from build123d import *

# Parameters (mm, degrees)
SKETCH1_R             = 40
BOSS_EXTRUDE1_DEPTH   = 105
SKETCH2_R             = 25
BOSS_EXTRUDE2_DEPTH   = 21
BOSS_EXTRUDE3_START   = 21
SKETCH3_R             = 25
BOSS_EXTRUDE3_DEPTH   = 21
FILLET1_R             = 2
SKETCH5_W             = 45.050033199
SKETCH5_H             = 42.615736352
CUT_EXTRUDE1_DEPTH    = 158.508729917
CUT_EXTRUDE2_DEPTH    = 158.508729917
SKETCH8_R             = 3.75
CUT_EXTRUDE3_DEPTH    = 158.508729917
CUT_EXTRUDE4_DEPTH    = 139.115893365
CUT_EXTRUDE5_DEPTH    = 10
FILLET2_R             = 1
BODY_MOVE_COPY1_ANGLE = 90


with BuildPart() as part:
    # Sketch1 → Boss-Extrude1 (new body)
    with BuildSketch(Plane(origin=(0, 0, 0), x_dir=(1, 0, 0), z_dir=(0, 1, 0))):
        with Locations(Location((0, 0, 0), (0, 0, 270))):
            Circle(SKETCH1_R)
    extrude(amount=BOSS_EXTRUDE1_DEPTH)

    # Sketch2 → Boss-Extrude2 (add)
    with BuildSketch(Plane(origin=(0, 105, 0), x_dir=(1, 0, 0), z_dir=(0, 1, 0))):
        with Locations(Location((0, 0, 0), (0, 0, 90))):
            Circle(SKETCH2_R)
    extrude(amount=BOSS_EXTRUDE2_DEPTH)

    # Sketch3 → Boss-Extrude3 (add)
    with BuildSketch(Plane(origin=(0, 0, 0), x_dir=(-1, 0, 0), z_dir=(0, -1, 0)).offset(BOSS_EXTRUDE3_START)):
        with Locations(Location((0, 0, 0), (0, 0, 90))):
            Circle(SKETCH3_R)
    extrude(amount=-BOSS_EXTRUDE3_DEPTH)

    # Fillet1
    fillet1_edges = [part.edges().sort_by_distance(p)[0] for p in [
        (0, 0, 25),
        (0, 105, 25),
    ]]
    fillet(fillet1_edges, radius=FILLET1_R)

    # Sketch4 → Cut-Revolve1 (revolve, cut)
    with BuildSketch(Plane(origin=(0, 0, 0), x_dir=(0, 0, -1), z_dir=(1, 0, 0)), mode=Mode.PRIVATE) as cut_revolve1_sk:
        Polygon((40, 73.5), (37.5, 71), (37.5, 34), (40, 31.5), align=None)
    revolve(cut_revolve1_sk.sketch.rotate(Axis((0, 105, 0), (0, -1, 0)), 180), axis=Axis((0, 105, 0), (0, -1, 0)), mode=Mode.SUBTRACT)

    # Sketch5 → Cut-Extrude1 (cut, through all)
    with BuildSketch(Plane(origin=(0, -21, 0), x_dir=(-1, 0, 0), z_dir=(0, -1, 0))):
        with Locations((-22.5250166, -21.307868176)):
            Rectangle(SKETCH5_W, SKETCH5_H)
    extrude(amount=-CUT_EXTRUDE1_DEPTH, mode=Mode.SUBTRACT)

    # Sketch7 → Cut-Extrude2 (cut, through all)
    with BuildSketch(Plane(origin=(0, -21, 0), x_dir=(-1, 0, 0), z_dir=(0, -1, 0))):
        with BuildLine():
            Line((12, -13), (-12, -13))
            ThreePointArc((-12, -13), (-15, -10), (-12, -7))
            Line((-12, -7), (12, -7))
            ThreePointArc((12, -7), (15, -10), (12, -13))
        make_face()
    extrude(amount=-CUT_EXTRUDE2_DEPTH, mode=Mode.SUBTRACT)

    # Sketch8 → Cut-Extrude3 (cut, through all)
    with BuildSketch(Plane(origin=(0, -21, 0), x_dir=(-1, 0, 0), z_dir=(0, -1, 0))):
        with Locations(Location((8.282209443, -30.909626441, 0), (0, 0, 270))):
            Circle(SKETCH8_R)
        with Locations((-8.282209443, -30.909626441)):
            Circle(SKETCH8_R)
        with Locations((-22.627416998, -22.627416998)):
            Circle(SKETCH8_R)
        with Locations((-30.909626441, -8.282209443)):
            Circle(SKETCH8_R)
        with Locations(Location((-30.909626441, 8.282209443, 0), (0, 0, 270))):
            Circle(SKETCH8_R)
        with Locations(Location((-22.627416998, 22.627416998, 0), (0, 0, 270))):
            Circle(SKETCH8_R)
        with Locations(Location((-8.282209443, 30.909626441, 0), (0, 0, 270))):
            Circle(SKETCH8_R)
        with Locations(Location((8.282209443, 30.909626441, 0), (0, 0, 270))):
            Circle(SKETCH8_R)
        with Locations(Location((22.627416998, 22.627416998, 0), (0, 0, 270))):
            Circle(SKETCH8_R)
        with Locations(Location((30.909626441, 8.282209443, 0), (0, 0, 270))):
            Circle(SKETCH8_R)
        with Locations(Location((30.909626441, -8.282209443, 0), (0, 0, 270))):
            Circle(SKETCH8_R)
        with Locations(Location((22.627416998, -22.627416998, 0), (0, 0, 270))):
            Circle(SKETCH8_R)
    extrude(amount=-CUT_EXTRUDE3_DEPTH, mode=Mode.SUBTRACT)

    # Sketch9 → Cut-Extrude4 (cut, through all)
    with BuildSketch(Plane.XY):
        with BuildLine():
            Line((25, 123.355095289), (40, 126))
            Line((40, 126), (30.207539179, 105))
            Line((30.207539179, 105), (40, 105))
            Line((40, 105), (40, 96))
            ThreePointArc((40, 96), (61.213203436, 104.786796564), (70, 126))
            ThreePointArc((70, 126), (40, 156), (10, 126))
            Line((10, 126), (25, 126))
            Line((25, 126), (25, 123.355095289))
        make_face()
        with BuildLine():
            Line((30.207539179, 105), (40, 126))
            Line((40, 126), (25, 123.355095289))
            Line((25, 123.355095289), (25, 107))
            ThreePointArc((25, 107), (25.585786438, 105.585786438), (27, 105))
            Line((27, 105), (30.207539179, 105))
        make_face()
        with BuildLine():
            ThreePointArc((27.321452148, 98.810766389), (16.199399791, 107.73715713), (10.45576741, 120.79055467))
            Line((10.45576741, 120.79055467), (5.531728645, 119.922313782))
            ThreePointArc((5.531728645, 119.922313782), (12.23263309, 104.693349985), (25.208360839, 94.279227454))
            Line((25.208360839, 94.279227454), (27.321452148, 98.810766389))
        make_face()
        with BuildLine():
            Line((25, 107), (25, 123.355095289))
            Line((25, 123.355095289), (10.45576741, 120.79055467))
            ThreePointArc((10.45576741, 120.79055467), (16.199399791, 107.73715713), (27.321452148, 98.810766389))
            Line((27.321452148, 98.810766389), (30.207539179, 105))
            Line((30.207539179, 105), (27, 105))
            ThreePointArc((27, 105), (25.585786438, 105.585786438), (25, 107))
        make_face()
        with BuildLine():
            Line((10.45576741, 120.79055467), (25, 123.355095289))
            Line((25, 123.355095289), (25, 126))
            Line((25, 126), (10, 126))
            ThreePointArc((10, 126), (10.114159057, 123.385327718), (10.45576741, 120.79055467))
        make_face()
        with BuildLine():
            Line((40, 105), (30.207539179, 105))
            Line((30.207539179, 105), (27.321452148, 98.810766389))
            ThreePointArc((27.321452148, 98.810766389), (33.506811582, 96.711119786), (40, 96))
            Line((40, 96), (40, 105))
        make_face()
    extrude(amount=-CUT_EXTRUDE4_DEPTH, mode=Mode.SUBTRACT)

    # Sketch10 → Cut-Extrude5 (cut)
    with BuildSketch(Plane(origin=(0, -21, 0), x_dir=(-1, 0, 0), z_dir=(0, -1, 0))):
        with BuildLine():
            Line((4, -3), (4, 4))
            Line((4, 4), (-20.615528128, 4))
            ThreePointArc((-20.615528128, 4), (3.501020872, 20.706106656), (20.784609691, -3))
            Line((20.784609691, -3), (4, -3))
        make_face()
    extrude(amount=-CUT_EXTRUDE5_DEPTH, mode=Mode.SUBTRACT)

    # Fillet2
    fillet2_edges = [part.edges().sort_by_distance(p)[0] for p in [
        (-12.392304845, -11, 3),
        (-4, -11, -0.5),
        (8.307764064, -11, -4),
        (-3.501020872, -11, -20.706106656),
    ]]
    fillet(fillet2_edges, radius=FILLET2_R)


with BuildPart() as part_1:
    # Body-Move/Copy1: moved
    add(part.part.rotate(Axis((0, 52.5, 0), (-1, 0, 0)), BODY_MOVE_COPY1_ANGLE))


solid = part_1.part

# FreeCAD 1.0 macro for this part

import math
import FreeCAD as App
import Part
import Sketcher

V = App.Vector
Q = App.Units.Quantity


def edges_at(feature, points):
    """Names of the edges that pass closest to the given points."""
    edges = feature.Shape.Edges
    near = lambda p: min(range(len(edges)), key=lambda i: edges[i].distToShape(Part.Vertex(*p))[0])
    return sorted({f"Edge{near(p) + 1}" for p in points})

doc = App.newDocument("Part")
body = doc.addObject("PartDesign::Body", "Body")

sketch1 = doc.addObject("Sketcher::SketchObject", "Sketch")
body.addObject(sketch1)
sketch1.AttachmentSupport = (doc.XZ_Plane, [""])
sketch1.MapMode = "FlatFace"
sketch1.addGeometry(Part.Circle(V(0, 0, 0), V(0, 0, 1), 40), False)
sketch1.addConstraint([
    Sketcher.Constraint("Coincident", 0, 3, -1, 1),
    Sketcher.Constraint("Diameter", 0, 80.0),
])
pad1 = doc.addObject("PartDesign::Pad", "Pad")
body.addObject(pad1)
pad1.Profile = sketch1
pad1.Length = 105
pad1.Reversed = True

sketch2 = doc.addObject("Sketcher::SketchObject", "Sketch001")
body.addObject(sketch2)
sketch2.AttachmentSupport = (doc.XZ_Plane, [""])
sketch2.MapMode = "FlatFace"
sketch2.AttachmentOffset = App.Placement(V(0, 0, -105), App.Rotation())
sketch2.addGeometry(Part.Circle(V(0, 0, 0), V(0, 0, 1), 25), False)
sketch2.addConstraint([
    Sketcher.Constraint("Coincident", 0, 3, -1, 1),
    Sketcher.Constraint("Diameter", 0, 50.0),
])
pad2 = doc.addObject("PartDesign::Pad", "Pad001")
body.addObject(pad2)
pad2.Profile = sketch2
pad2.Length = 21
pad2.Reversed = True

sketch3 = doc.addObject("Sketcher::SketchObject", "Sketch002")
body.addObject(sketch3)
sketch3.AttachmentSupport = (doc.XZ_Plane, [""])
sketch3.MapMode = "FlatFace"
sketch3.AttachmentOffset = App.Placement(V(0, 0, 21), App.Rotation())
sketch3.addGeometry(Part.Circle(V(0, 0, 0), V(0, 0, 1), 25), False)
sketch3.addConstraint([
    Sketcher.Constraint("Coincident", 0, 3, -1, 1),
    Sketcher.Constraint("Diameter", 0, 50.0),
])
pad3 = doc.addObject("PartDesign::Pad", "Pad002")
body.addObject(pad3)
pad3.Profile = sketch3
pad3.Length = 21
pad3.Reversed = True
doc.recompute()

fillet = doc.addObject("PartDesign::Fillet", "Fillet")
body.addObject(fillet)
fillet.Base = (pad3, edges_at(pad3, [(0, 0, 25), (0, 105, 25)]))
fillet.Radius = 2

sketch4 = doc.addObject("Sketcher::SketchObject", "Sketch003")
body.addObject(sketch4)
sketch4.AttachmentSupport = (doc.YZ_Plane, [""])
sketch4.MapMode = "FlatFace"
sketch4.addGeometry([
    Part.LineSegment(V(73.5, -40, 0), V(71, -37.5, 0)),
    Part.LineSegment(V(71, -37.5, 0), V(34, -37.5, 0)),
    Part.LineSegment(V(34, -37.5, 0), V(31.5, -40, 0)),
    Part.LineSegment(V(31.5, -40, 0), V(73.5, -40, 0)),
], False)
sketch4.addConstraint([
    Sketcher.Constraint("Coincident", 0, 2, 1, 1),
    Sketcher.Constraint("Coincident", 1, 2, 2, 1),
    Sketcher.Constraint("Coincident", 2, 2, 3, 1),
    Sketcher.Constraint("Coincident", 3, 2, 0, 1),
    Sketcher.Constraint("Horizontal", 1),
    Sketcher.Constraint("Horizontal", 3),
    Sketcher.Constraint("Perpendicular", 0, 2),
    Sketcher.Constraint("Equal", 0, 2),
    Sketcher.Constraint("DistanceX", 1, 2, 1, 1, 37.0),
    Sketcher.Constraint("DistanceX", 3, 1, 3, 2, 42.0),
    Sketcher.Constraint("DistanceX", -1, 1, 0, 2, 71.0),
    Sketcher.Constraint("DistanceY", 2, 2, -1, 1, 40.0),
])
groove = doc.addObject("PartDesign::Groove", "Groove")
body.addObject(groove)
groove.Profile = sketch4
groove.ReferenceAxis = (sketch4, ["H_Axis"])
groove.Angle = 360

sketch5 = doc.addObject("Sketcher::SketchObject", "Sketch004")
body.addObject(sketch5)
sketch5.AttachmentSupport = (doc.XZ_Plane, [""])
sketch5.MapMode = "FlatFace"
sketch5.AttachmentOffset = App.Placement(V(0, 0, 21), App.Rotation())
sketch5.addGeometry([
    Part.LineSegment(V(45, 0, 0), V(45, 43, 0)),
    Part.LineSegment(V(45, 43, 0), V(0, 43, 0)),
    Part.LineSegment(V(0, 43, 0), V(0, 0, 0)),
    Part.LineSegment(V(0, 0, 0), V(45, 0, 0)),
], False)
sketch5.addConstraint([
    Sketcher.Constraint("Coincident", 0, 2, 1, 1),
    Sketcher.Constraint("Coincident", 1, 2, 2, 1),
    Sketcher.Constraint("Coincident", 2, 2, 3, 1),
    Sketcher.Constraint("Coincident", 3, 2, 0, 1),
    Sketcher.Constraint("Vertical", 0),
    Sketcher.Constraint("Horizontal", 1),
    Sketcher.Constraint("Vertical", 2),
    Sketcher.Constraint("Horizontal", 3),
    Sketcher.Constraint("Coincident", 2, 2, -1, 1),
    Sketcher.Constraint("DistanceX", 1, 2, 1, 1, 45.050033),
    Sketcher.Constraint("DistanceY", 0, 1, 0, 2, 42.615736),
])
pocket1 = doc.addObject("PartDesign::Pocket", "Pocket")
body.addObject(pocket1)
pocket1.Profile = sketch5
pocket1.Type = "ThroughAll"

sketch6 = doc.addObject("Sketcher::SketchObject", "Sketch005")
body.addObject(sketch6)
sketch6.AttachmentSupport = (doc.XZ_Plane, [""])
sketch6.MapMode = "FlatFace"
sketch6.AttachmentOffset = App.Placement(V(0, 0, 21), App.Rotation())
sketch6.addGeometry([
    Part.LineSegment(V(12, 13, 0), V(-12, 13, 0)),
    Part.ArcOfCircle(Part.Circle(V(-12, 10, 0), V(0, 0, 1), 3), math.radians(90), math.radians(270)),
    Part.LineSegment(V(-12, 7, 0), V(12, 7, 0)),
    Part.ArcOfCircle(Part.Circle(V(12, 10, 0), V(0, 0, 1), 3), math.radians(-90), math.radians(90)),
], False)
sketch6.addConstraint([
    Sketcher.Constraint("Tangent", 0, 2, 1, 1),
    Sketcher.Constraint("Tangent", 1, 2, 2, 1),
    Sketcher.Constraint("Tangent", 2, 2, 3, 1),
    Sketcher.Constraint("Tangent", 3, 2, 0, 1),
    Sketcher.Constraint("Horizontal", 0),
    Sketcher.Constraint("Horizontal", 2),
    Sketcher.Constraint("Radius", 1, 3.0),
    Sketcher.Constraint("DistanceX", 0, 2, 0, 1, 24.0),
    Sketcher.Constraint("DistanceX", 1, 3, -1, 1, 12.0),
    Sketcher.Constraint("DistanceY", -1, 1, 1, 3, 10.0),
])
pocket2 = doc.addObject("PartDesign::Pocket", "Pocket001")
body.addObject(pocket2)
pocket2.Profile = sketch6
pocket2.Type = "ThroughAll"

sketch7 = doc.addObject("Sketcher::SketchObject", "Sketch006")
body.addObject(sketch7)
sketch7.AttachmentSupport = (doc.XZ_Plane, [""])
sketch7.MapMode = "FlatFace"
sketch7.AttachmentOffset = App.Placement(V(0, 0, 21), App.Rotation())
sketch7.addGeometry([
    Part.Circle(V(-8.3, 30.9, 0), V(0, 0, 1), 3.8),
    Part.Circle(V(8.3, 30.9, 0), V(0, 0, 1), 3.8),
    Part.Circle(V(22.6, 22.6, 0), V(0, 0, 1), 3.8),
    Part.Circle(V(30.9, 8.3, 0), V(0, 0, 1), 3.8),
    Part.Circle(V(30.9, -8.3, 0), V(0, 0, 1), 3.8),
    Part.Circle(V(22.6, -22.6, 0), V(0, 0, 1), 3.8),
    Part.Circle(V(8.3, -30.9, 0), V(0, 0, 1), 3.8),
    Part.Circle(V(-8.3, -30.9, 0), V(0, 0, 1), 3.8),
    Part.Circle(V(-22.6, -22.6, 0), V(0, 0, 1), 3.8),
    Part.Circle(V(-30.9, -8.3, 0), V(0, 0, 1), 3.8),
    Part.Circle(V(-30.9, 8.3, 0), V(0, 0, 1), 3.8),
    Part.Circle(V(-22.6, 22.6, 0), V(0, 0, 1), 3.8),
], False)
sketch7.addConstraint([
    Sketcher.Constraint("Equal", 0, 1),
    Sketcher.Constraint("Equal", 1, 2),
    Sketcher.Constraint("Equal", 2, 3),
    Sketcher.Constraint("Equal", 3, 4),
    Sketcher.Constraint("Equal", 4, 5),
    Sketcher.Constraint("Equal", 5, 6),
    Sketcher.Constraint("Equal", 6, 7),
    Sketcher.Constraint("Equal", 7, 8),
    Sketcher.Constraint("Equal", 8, 9),
    Sketcher.Constraint("Equal", 9, 10),
    Sketcher.Constraint("Equal", 10, 11),
    Sketcher.Constraint("Symmetric", 0, 3, 6, 3, -1, 1),
    Sketcher.Constraint("Symmetric", 1, 3, 7, 3, -1, 1),
    Sketcher.Constraint("Symmetric", 2, 3, 8, 3, -1, 1),
    Sketcher.Constraint("Symmetric", 3, 3, 9, 3, -1, 1),
    Sketcher.Constraint("Symmetric", 4, 3, 10, 3, -1, 1),
    Sketcher.Constraint("Symmetric", 5, 3, 11, 3, -1, 1),
    Sketcher.Constraint("Symmetric", 0, 3, 1, 3, -2),
    Sketcher.Constraint("Symmetric", 5, 3, 8, 3, -2),
    Sketcher.Constraint("Symmetric", 4, 3, 9, 3, -2),
    Sketcher.Constraint("Diameter", 0, 7.5),
    Sketcher.Constraint("DistanceX", 0, 3, -1, 1, 8.282209),
    Sketcher.Constraint("DistanceY", -1, 1, 3, 3, 8.282209),
    Sketcher.Constraint("DistanceY", 2, 3, 1, 3, 8.282209),
    Sketcher.Constraint("DistanceX", 2, 3, 3, 3, 8.282209),
    Sketcher.Constraint("DistanceY", -1, 1, 0, 3, 30.909626),
    Sketcher.Constraint("DistanceX", -1, 1, 2, 3, 22.627417),
])
pocket3 = doc.addObject("PartDesign::Pocket", "Pocket002")
body.addObject(pocket3)
pocket3.Profile = sketch7
pocket3.Type = "ThroughAll"

sketch8 = doc.addObject("Sketcher::SketchObject", "Sketch007")
body.addObject(sketch8)
sketch8.AttachmentSupport = (doc.XY_Plane, [""])
sketch8.MapMode = "FlatFace"
sketch8.addGeometry([
    Part.ArcOfCircle(Part.Circle(V(40, 126, 0), V(0, 0, 1), 30), math.radians(-90), math.radians(0)),
    Part.ArcOfCircle(Part.Circle(V(40, 126, 0), V(0, 0, 1), 30), math.radians(0), math.radians(180)),
    Part.ArcOfCircle(Part.Circle(V(40, 126, 0), V(0, 0, 1), 30), math.radians(180), math.radians(190)),
    Part.LineSegment(V(10.5, 120.8, 0), V(5.5, 119.9, 0)),
    Part.ArcOfCircle(Part.Circle(V(40, 126, 0), V(0, 0, 1), 35), math.radians(-170), math.radians(-115)),
    Part.LineSegment(V(25.2, 94.3, 0), V(27.3, 98.8, 0)),
    Part.ArcOfCircle(Part.Circle(V(40, 126, 0), V(0, 0, 1), 30), math.radians(-115), math.radians(-90)),
], False)
sketch8.addConstraint([
    Sketcher.Constraint("Tangent", 0, 2, 1, 1),
    Sketcher.Constraint("Tangent", 1, 2, 2, 1),
    Sketcher.Constraint("Coincident", 2, 2, 3, 1),
    Sketcher.Constraint("Coincident", 3, 2, 4, 1),
    Sketcher.Constraint("Coincident", 4, 2, 5, 1),
    Sketcher.Constraint("Coincident", 5, 2, 6, 1),
    Sketcher.Constraint("Tangent", 6, 2, 0, 1),
    Sketcher.Constraint("Coincident", 4, 3, 0, 3),
    Sketcher.Constraint("Equal", 0, 1),
    Sketcher.Constraint("Equal", 1, 2),
    Sketcher.Constraint("Equal", 2, 6),
    Sketcher.Constraint("Horizontal", 6, 3, 0, 2),
    Sketcher.Constraint("Horizontal", 0, 2, 1, 2),
    Sketcher.Constraint("Vertical", 4, 3, 6, 2),
    Sketcher.Constraint("Radius", 0, 30.0),
    Sketcher.Constraint("Radius", 4, 35.0),
    Sketcher.Constraint("Angle", 3, Q("-170 deg")),
    Sketcher.Constraint("Angle", 5, Q("65 deg")),
    Sketcher.Constraint("DistanceX", -1, 1, 0, 3, 40.0),
    Sketcher.Constraint("DistanceY", -1, 1, 0, 3, 126.0),
    Sketcher.Constraint("DistanceX", -1, 1, 3, 2, 5.531729),
    Sketcher.Constraint("DistanceX", -1, 1, 4, 2, 25.208361),
])
pocket4 = doc.addObject("PartDesign::Pocket", "Pocket003")
body.addObject(pocket4)
pocket4.Profile = sketch8
pocket4.Type = "ThroughAll"

sketch9 = doc.addObject("Sketcher::SketchObject", "Sketch008")
body.addObject(sketch9)
sketch9.AttachmentSupport = (doc.XZ_Plane, [""])
sketch9.MapMode = "FlatFace"
sketch9.AttachmentOffset = App.Placement(V(0, 0, 21), App.Rotation())
sketch9.addGeometry([
    Part.LineSegment(V(-4, -4, 0), V(-4, 3, 0)),
    Part.LineSegment(V(-4, 3, 0), V(-21, 3, 0)),
    Part.ArcOfCircle(Part.Circle(V(0, 0, 0), V(0, 0, 1), 21), math.radians(172), math.radians(349)),
    Part.LineSegment(V(21, -4, 0), V(-4, -4, 0)),
], False)
sketch9.addConstraint([
    Sketcher.Constraint("Coincident", 0, 2, 1, 1),
    Sketcher.Constraint("Coincident", 1, 2, 2, 1),
    Sketcher.Constraint("Coincident", 2, 2, 3, 1),
    Sketcher.Constraint("Coincident", 3, 2, 0, 1),
    Sketcher.Constraint("Vertical", 0),
    Sketcher.Constraint("Horizontal", 1),
    Sketcher.Constraint("Horizontal", 3),
    Sketcher.Constraint("Coincident", 2, 3, -1, 1),
    Sketcher.Constraint("Radius", 2, 21.0),
    Sketcher.Constraint("DistanceY", 0, 1, 0, 2, 7.0),
    Sketcher.Constraint("DistanceX", 0, 2, -1, 1, 4.0),
    Sketcher.Constraint("DistanceY", -1, 1, 0, 2, 3.0),
])
pocket5 = doc.addObject("PartDesign::Pocket", "Pocket004")
body.addObject(pocket5)
pocket5.Profile = sketch9
pocket5.Length = 10
doc.recompute()

fillet2 = doc.addObject("PartDesign::Fillet", "Fillet001")
body.addObject(fillet2)
fillet2.Base = (pocket5, edges_at(pocket5, [
    (-12.392, -11, 3),
    (-4, -11, -0.5),
    (8.308, -11, -4),
    (-3.501, -11, -20.706),
]))
fillet2.Radius = 1
body2 = doc.addObject("PartDesign::Body", "Body001")
doc.recompute()

body.Placement = App.Placement(V(0, 52.5, 52.5), App.Rotation(V(-1, 0, 0), 90))
boolean = doc.addObject("PartDesign::Boolean", "Boolean")
body2.addObject(boolean)
boolean.Type = "Fuse"
boolean.addObjects([body])

doc.recompute()
